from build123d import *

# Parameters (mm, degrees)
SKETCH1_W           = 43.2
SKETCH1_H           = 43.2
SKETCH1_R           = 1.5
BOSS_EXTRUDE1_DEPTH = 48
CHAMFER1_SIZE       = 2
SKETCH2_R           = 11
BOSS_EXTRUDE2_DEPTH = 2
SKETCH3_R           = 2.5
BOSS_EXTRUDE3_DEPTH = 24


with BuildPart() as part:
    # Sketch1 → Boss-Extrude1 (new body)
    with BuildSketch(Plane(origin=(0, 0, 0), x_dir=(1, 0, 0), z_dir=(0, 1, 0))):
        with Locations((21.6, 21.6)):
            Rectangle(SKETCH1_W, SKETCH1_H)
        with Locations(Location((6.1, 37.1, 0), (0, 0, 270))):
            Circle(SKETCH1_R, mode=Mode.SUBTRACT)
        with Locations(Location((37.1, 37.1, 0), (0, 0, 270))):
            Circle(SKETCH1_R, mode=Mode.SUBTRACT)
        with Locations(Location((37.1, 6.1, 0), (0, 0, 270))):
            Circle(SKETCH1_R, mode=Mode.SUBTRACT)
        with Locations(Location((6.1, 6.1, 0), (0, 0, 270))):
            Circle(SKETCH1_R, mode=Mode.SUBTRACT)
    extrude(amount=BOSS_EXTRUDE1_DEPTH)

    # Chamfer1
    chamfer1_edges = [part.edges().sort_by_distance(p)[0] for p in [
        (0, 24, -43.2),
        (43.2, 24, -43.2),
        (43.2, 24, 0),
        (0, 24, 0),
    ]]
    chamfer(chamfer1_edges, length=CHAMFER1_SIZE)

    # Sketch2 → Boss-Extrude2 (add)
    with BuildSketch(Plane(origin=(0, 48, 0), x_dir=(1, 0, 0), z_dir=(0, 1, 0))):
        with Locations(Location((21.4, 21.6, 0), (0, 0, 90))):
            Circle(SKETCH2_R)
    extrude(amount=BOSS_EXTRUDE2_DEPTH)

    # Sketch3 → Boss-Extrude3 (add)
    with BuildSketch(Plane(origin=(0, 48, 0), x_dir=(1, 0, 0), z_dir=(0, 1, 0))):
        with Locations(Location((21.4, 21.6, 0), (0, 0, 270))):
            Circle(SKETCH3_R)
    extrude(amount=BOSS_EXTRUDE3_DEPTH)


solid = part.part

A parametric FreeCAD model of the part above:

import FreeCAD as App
import Part
import Sketcher
Q = App.Units.Quantity


def edges_at(feature, points):
    """Names of the edges that pass closest to the given points."""
    edges = feature.Shape.Edges
    near = lambda p: min(range(len(edges)), key=lambda i: edges[i].distToShape(Part.Vertex(*p))[0])
    return sorted({f"Edge{near(p) + 1}" for p in points})

doc = App.newDocument("Part")
body = doc.addObject("PartDesign::Body", "Body")

sketch1 = body.newObject("Sketcher::SketchObject", "Sketch")
sketch1.AttachmentSupport = (doc.getObject("XZ_Plane"), [""])
sketch1.MapMode = "FlatFace"
sketch1.addGeometry([
    Part.LineSegment(App.Vector(0, -43.2, 0), App.Vector(0, 0, 0)),
    Part.LineSegment(App.Vector(0, 0, 0), App.Vector(43.2, 0, 0)),
    Part.LineSegment(App.Vector(43.2, 0, 0), App.Vector(43.2, -43.2, 0)),
    Part.LineSegment(App.Vector(43.2, -43.2, 0), App.Vector(0, -43.2, 0)),
    Part.Circle(App.Vector(6.1, -6.1, 0), App.Vector(0, 0, 1), 1.5),
    Part.Circle(App.Vector(37.1, -6.1, 0), App.Vector(0, 0, 1), 1.5),
    Part.Circle(App.Vector(6.1, -37.1, 0), App.Vector(0, 0, 1), 1.5),
    Part.Circle(App.Vector(37.1, -37.1, 0), App.Vector(0, 0, 1), 1.5),
], False)
sketch1.addConstraint([
    Sketcher.Constraint("Coincident", 0, 2, 1, 1),
    Sketcher.Constraint("Coincident", 1, 2, 2, 1),
    Sketcher.Constraint("Coincident", 2, 2, 3, 1),
    Sketcher.Constraint("Coincident", 3, 2, 0, 1),
    Sketcher.Constraint("Vertical", 0),
    Sketcher.Constraint("Horizontal", 1),
    Sketcher.Constraint("Vertical", 2),
    Sketcher.Constraint("Horizontal", 3),
    Sketcher.Constraint("Coincident", 0, 2, -1, 1),
    Sketcher.Constraint("Equal", 4, 5),
    Sketcher.Constraint("Equal", 5, 6),
    Sketcher.Constraint("Equal", 6, 7),
    Sketcher.Constraint("Horizontal", 4, 3, 5, 3),
    Sketcher.Constraint("Horizontal", 6, 3, 7, 3),
    Sketcher.Constraint("Vertical", 4, 3, 6, 3),
    Sketcher.Constraint("Vertical", 5, 3, 7, 3),
    Sketcher.Constraint("Equal", 3, 0),
    Sketcher.Constraint("Diameter", 4, Q("3 mm")),
    Sketcher.Constraint("DistanceX", 1, 1, 1, 2, Q("43.2 mm")),
    Sketcher.Constraint("DistanceX", 4, 3, 5, 3, Q("31 mm")),
    Sketcher.Constraint("DistanceY", 6, 3, 4, 3, Q("31 mm")),
    Sketcher.Constraint("DistanceX", -1, 1, 4, 3, Q("6.1 mm")),
    Sketcher.Constraint("DistanceY", 4, 3, -1, 1, Q("6.1 mm")),
])
pad1 = body.newObject("PartDesign::Pad", "Pad")
pad1.Profile = sketch1
pad1.Length = 48
pad1.Reversed = True
doc.recompute()

chamfer = body.newObject("PartDesign::Chamfer", "Chamfer")
chamfer.Base = (pad1, edges_at(pad1, [
    (0, 24, -43.2),
    (43.2, 24, -43.2),
    (43.2, 24, 0),
    (0, 24, 0),
]))
chamfer.Size = 2

sketch2 = body.newObject("Sketcher::SketchObject", "Sketch001")
sketch2.AttachmentSupport = (doc.getObject("XZ_Plane"), [""])
sketch2.MapMode = "FlatFace"
sketch2.AttachmentOffset = App.Placement(App.Vector(0, 0, -48), App.Rotation())
sketch2.addGeometry(Part.Circle(App.Vector(21.4, -21.6, 0), App.Vector(0, 0, 1), 11), False)
sketch2.addConstraint([
    Sketcher.Constraint("Diameter", 0, Q("22 mm")),
    Sketcher.Constraint("DistanceX", -1, 1, 0, 3, Q("21.4 mm")),
    Sketcher.Constraint("DistanceY", 0, 3, -1, 1, Q("21.6 mm")),
])
pad2 = body.newObject("PartDesign::Pad", "Pad001")
pad2.Profile = sketch2
pad2.Length = 2
pad2.Reversed = True

sketch3 = body.newObject("Sketcher::SketchObject", "Sketch002")
sketch3.AttachmentSupport = (doc.getObject("XZ_Plane"), [""])
sketch3.MapMode = "FlatFace"
sketch3.AttachmentOffset = App.Placement(App.Vector(0, 0, -48), App.Rotation())
sketch3.addGeometry(Part.Circle(App.Vector(21.4, -21.6, 0), App.Vector(0, 0, 1), 2.5), False)
sketch3.addConstraint([
    Sketcher.Constraint("Diameter", 0, Q("5 mm")),
    Sketcher.Constraint("DistanceX", -1, 1, 0, 3, Q("21.4 mm")),
    Sketcher.Constraint("DistanceY", 0, 3, -1, 1, Q("21.6 mm")),
])
pad3 = body.newObject("PartDesign::Pad", "Pad002")
pad3.Profile = sketch3
pad3.Length = 24
pad3.Reversed = True

doc.recompute()
